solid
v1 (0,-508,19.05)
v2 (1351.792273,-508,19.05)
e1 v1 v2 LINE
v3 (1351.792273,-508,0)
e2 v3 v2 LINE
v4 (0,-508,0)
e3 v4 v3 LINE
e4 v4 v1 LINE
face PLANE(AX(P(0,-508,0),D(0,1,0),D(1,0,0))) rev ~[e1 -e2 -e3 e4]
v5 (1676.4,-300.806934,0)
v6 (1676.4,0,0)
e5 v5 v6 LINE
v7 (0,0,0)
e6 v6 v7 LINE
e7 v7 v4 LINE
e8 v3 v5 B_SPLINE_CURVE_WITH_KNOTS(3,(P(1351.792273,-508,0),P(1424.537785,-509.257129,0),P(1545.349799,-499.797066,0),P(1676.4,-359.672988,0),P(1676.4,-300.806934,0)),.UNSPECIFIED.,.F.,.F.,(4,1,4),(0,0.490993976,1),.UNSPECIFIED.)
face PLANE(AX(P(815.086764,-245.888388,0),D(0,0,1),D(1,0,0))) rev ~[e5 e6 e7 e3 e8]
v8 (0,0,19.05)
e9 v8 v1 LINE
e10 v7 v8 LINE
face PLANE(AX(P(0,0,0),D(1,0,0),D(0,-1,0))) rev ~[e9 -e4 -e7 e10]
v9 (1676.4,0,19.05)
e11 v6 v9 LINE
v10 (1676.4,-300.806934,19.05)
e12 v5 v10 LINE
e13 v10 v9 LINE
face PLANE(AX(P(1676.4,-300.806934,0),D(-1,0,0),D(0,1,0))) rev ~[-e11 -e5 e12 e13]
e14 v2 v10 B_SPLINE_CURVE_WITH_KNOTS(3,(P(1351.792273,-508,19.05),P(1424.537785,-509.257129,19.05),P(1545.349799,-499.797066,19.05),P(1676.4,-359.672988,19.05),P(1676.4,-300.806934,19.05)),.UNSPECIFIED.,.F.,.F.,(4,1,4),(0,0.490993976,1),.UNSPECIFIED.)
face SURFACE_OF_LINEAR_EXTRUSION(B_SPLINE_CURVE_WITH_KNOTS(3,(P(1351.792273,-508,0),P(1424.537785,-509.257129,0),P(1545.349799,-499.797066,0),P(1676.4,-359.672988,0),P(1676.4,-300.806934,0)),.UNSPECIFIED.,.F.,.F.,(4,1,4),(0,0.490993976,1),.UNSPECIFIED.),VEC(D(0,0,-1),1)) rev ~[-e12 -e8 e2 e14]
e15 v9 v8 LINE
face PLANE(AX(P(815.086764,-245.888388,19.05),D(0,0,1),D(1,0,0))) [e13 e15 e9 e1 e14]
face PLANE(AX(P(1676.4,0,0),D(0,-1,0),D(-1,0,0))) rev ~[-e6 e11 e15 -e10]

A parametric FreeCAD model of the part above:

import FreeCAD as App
import Part
import Sketcher
Q = App.Units.Quantity

doc = App.newDocument("Part")
body = doc.addObject("PartDesign::Body", "Body")

sketch1 = body.newObject("Sketcher::SketchObject", "Sketch")
sketch1.AttachmentSupport = (doc.getObject("XY_Plane"), [""])
sketch1.MapMode = "FlatFace"
sketch1.addGeometry(Part.LineSegment(App.Vector(1676.4, 0, 0), App.Vector(0, 0, 0)), False)
sketch1.addGeometry(Part.LineSegment(App.Vector(0, 0, 0), App.Vector(0, -508, 0)), False)
sketch1.addGeometry(Part.LineSegment(App.Vector(0, -508, 0), App.Vector(1351.792273, -508, 0)), False)
sketch1.addGeometry(Part.BSplineCurve([App.Vector(1351.792273, -508, 0), App.Vector(1424.537785, -509.257129, 0), App.Vector(1545.349799, -499.797066, 0), App.Vector(1676.4, -359.672988, 0), App.Vector(1676.4, -300.806934, 0)], [4, 1, 4], [0, 0.490993976, 1], False, 3, [1, 1, 1, 1, 1], False), False)
sketch1.addGeometry(Part.LineSegment(App.Vector(1676.4, -300.806934, 0), App.Vector(1676.4, 0, 0)), False)
sketch1.addConstraint(Sketcher.Constraint("Block", 3))
sketch1.addConstraint(Sketcher.Constraint("Coincident", 0, 2, 1, 1))
sketch1.addConstraint(Sketcher.Constraint("Coincident", 1, 2, 2, 1))
sketch1.addConstraint(Sketcher.Constraint("Coincident", 2, 2, 3, 1))
sketch1.addConstraint(Sketcher.Constraint("Coincident", 3, 2, 4, 1))
sketch1.addConstraint(Sketcher.Constraint("Coincident", 4, 2, 0, 1))
sketch1.addConstraint(Sketcher.Constraint("Horizontal", 0))
sketch1.addConstraint(Sketcher.Constraint("Vertical", 1))
sketch1.addConstraint(Sketcher.Constraint("Horizontal", 2))
sketch1.addConstraint(Sketcher.Constraint("Vertical", 4))
sketch1.addConstraint(Sketcher.Constraint("Coincident", 0, 2, -1, 1))
pad1 = body.newObject("PartDesign::Pad", "Pad")
pad1.Profile = sketch1
pad1.Length = Q("0.75 in")

doc.recompute()
